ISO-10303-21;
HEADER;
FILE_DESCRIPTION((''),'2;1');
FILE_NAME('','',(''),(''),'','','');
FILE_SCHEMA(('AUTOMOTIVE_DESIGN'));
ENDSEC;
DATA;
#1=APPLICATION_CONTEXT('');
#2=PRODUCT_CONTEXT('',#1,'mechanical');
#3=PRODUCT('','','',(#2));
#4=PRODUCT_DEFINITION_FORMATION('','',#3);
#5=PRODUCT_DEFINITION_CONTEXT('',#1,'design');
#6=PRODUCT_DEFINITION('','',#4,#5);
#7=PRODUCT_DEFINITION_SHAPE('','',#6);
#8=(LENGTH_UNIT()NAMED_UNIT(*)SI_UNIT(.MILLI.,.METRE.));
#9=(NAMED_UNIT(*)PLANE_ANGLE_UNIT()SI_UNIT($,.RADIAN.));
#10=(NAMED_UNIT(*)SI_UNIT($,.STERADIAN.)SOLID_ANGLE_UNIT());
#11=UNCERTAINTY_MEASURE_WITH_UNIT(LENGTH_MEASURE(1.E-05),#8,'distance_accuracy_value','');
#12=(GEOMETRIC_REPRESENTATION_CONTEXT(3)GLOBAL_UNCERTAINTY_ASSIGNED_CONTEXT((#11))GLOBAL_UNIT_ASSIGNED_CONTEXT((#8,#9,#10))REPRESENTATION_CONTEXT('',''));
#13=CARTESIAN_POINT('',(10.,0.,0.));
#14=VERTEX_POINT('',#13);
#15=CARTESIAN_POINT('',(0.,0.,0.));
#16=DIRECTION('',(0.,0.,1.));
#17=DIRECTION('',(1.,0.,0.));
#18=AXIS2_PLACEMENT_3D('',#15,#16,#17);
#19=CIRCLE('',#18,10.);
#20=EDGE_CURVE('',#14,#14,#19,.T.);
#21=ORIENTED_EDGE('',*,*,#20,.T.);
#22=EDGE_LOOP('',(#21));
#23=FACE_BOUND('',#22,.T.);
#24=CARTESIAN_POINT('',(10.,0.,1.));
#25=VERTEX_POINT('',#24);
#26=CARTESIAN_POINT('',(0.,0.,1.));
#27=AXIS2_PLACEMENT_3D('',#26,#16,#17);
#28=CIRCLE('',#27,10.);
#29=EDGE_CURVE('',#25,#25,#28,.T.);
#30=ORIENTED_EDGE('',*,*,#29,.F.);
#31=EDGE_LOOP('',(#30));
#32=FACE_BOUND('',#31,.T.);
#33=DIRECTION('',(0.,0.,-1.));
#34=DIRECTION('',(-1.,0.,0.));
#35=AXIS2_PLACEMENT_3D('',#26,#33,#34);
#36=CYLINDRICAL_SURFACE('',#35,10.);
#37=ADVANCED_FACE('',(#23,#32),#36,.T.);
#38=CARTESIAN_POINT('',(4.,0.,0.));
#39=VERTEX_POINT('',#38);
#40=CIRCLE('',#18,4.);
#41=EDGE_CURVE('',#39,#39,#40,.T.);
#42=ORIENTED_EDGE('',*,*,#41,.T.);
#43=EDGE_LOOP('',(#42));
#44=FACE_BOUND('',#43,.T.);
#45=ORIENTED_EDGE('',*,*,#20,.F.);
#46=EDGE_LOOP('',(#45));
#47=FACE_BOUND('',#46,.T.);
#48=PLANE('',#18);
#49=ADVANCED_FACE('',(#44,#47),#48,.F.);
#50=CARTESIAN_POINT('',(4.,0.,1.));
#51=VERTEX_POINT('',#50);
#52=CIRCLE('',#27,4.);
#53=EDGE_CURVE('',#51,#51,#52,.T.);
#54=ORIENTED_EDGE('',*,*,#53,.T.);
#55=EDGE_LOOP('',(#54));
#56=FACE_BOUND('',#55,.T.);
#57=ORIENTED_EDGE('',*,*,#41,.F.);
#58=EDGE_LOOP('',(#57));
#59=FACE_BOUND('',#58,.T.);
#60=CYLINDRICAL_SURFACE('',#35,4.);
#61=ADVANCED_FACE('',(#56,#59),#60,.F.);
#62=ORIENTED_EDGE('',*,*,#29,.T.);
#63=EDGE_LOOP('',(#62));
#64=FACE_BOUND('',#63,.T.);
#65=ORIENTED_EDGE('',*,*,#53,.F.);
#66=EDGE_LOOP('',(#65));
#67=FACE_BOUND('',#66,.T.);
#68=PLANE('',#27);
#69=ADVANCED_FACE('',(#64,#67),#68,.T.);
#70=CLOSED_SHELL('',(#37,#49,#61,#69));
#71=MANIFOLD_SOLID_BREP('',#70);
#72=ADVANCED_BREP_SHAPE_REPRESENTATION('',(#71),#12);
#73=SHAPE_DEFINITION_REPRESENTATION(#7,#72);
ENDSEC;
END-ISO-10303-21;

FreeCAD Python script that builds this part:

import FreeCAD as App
import Part
import Sketcher
from FreeCAD import Vector

doc = App.newDocument("Part")
body = doc.addObject("PartDesign::Body", "Body")

# Sketch on XY plane
sketch1 = body.newObject("Sketcher::SketchObject", "Sketch")
sketch1.AttachmentSupport = (doc.getObject("XY_Plane"), [""])
sketch1.MapMode = "FlatFace"
sketch1.addGeometry([
    Part.Circle(Vector(0, 0, 0), Vector(0, 0, 1), 10),
    Part.Circle(Vector(0, 0, 0), Vector(0, 0, 1), 4),
], False)
sketch1.addConstraint([
    Sketcher.Constraint("Coincident", 0, 3, -1, 1),
    Sketcher.Constraint("Coincident", 1, 3, -1, 1),
    Sketcher.Constraint("Diameter", 0, 20.0),
    Sketcher.Constraint("Diameter", 1, 8.0),
])
pad1 = body.newObject("PartDesign::Pad", "Pad")
pad1.Profile = sketch1
pad1.Length = 1

doc.recompute()
